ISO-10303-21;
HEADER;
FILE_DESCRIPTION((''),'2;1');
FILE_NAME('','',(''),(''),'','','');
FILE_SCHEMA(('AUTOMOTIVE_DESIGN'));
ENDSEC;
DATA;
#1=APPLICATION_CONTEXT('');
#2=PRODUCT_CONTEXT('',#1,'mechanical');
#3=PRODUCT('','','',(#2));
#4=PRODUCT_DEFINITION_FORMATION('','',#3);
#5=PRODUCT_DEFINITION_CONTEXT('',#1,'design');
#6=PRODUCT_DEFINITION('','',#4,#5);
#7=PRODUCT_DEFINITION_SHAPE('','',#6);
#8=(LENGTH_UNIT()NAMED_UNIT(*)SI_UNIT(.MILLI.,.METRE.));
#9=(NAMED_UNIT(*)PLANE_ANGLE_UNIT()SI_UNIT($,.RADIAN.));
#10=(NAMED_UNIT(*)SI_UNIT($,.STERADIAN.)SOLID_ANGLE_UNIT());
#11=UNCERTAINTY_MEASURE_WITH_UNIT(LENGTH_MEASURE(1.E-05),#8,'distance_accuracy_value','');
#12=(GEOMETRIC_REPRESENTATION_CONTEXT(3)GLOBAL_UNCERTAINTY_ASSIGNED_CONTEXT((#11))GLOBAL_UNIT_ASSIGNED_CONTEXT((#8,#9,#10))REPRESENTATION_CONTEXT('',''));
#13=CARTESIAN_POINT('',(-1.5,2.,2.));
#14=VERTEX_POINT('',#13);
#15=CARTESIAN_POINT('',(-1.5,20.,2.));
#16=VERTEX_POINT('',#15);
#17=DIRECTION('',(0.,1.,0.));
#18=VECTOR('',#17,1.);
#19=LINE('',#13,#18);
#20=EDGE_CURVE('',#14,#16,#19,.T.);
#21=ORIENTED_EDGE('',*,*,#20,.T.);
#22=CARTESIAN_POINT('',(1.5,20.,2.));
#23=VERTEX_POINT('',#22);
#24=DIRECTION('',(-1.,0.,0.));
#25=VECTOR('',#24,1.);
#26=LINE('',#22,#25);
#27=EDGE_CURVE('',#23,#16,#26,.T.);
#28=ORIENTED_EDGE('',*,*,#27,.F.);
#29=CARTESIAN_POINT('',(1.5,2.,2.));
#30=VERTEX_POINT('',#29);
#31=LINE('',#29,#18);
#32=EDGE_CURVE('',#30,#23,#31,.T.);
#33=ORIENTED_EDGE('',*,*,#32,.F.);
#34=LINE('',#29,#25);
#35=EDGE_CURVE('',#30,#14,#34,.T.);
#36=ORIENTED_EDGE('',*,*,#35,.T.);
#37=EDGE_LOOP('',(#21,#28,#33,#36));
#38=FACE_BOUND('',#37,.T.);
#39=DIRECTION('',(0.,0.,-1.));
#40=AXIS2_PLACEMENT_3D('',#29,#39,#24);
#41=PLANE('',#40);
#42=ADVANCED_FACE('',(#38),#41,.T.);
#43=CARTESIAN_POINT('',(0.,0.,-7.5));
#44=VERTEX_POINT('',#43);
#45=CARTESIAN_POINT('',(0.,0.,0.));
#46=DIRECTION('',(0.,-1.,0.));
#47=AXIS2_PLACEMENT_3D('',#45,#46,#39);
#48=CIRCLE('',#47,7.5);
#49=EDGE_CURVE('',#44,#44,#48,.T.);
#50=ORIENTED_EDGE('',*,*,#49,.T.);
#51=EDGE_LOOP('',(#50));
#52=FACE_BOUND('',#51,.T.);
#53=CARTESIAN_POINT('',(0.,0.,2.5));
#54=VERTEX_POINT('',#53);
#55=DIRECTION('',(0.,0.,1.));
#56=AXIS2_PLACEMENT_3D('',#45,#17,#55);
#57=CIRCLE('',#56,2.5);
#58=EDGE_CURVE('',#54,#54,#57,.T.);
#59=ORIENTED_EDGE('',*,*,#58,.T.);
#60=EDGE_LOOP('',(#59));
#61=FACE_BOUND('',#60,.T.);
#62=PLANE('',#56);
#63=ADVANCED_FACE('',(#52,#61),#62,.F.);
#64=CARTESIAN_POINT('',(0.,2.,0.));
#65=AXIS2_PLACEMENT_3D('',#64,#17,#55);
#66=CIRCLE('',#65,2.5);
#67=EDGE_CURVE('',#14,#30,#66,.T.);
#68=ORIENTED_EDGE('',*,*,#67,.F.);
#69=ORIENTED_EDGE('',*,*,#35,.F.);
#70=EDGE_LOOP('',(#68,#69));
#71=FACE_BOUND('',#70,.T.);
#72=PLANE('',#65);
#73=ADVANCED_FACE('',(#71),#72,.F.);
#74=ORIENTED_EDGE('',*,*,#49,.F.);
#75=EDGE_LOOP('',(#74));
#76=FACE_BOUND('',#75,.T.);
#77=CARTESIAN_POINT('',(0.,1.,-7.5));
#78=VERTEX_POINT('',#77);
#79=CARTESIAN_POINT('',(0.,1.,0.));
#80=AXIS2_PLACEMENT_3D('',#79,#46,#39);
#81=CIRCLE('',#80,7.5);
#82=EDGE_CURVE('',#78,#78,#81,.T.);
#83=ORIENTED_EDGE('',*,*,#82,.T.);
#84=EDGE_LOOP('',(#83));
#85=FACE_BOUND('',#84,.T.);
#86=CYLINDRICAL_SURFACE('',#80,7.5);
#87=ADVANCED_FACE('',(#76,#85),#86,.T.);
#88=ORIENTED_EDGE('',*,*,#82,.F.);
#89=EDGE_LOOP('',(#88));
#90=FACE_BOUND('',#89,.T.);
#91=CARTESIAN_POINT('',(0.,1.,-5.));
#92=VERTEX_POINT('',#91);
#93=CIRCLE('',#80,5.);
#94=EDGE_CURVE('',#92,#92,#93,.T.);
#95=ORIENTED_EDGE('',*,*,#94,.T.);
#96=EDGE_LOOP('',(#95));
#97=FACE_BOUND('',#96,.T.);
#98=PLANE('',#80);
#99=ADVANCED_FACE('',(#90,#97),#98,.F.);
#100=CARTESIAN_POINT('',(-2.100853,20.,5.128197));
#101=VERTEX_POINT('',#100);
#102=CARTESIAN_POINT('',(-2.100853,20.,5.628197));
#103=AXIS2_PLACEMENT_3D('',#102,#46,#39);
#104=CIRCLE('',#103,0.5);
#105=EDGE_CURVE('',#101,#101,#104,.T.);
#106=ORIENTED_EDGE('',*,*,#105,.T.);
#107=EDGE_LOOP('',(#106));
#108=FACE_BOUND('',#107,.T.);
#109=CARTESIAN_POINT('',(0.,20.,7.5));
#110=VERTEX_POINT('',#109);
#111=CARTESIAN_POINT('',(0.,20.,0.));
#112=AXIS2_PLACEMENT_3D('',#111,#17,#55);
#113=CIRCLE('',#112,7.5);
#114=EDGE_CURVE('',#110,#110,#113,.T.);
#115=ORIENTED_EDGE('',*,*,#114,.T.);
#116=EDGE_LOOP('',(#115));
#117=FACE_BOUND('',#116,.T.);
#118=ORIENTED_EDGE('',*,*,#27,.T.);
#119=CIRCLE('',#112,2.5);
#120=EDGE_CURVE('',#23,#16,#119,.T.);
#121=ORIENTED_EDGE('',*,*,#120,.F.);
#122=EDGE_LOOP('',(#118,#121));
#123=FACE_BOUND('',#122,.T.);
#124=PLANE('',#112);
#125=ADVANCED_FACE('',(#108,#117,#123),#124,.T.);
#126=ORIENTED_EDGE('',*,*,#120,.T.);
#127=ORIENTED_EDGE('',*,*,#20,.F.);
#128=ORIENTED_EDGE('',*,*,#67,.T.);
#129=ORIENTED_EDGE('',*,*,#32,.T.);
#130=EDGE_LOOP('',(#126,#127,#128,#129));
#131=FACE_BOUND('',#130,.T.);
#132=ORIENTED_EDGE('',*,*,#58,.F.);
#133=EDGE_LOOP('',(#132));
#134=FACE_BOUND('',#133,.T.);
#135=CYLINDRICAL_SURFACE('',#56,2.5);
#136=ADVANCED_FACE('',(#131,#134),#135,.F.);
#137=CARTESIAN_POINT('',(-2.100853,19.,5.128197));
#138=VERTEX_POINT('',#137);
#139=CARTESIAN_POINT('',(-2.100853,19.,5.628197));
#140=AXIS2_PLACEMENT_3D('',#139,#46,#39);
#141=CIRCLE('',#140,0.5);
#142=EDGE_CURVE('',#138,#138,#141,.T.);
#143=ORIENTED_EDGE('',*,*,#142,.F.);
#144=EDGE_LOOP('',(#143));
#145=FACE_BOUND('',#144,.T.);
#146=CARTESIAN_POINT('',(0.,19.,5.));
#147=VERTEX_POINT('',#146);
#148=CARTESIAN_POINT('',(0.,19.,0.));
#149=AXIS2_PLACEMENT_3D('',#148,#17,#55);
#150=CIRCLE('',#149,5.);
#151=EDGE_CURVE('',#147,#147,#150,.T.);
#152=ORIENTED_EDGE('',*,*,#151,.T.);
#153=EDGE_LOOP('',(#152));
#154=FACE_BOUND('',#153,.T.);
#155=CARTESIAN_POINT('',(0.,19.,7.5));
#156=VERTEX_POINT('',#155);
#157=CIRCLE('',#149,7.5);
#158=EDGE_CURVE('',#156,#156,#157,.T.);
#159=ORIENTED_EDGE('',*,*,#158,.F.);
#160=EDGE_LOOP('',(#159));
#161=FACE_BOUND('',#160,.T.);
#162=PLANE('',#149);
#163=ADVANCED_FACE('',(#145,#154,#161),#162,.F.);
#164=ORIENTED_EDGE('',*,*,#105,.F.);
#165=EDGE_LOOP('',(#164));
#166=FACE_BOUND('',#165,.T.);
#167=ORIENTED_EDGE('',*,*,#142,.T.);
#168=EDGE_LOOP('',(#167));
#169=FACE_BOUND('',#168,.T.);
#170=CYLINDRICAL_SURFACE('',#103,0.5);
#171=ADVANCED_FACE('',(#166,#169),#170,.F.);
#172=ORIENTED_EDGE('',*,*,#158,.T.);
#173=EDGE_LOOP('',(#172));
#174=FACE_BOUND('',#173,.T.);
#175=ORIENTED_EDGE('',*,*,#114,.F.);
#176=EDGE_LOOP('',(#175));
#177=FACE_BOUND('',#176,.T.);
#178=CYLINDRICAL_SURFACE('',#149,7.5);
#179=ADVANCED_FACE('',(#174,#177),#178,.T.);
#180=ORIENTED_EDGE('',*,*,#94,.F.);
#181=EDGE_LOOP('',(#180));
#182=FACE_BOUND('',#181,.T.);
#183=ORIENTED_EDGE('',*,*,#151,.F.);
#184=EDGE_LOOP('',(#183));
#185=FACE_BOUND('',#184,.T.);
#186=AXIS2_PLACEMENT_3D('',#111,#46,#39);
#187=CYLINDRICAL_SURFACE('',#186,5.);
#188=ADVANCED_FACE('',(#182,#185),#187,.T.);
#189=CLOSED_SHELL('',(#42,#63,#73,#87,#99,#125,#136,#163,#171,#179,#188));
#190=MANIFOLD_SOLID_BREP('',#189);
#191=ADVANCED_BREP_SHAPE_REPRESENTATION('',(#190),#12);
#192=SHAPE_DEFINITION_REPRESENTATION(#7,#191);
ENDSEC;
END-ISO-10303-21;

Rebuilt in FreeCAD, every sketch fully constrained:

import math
import FreeCAD as App
import Part
import Sketcher
from FreeCAD import Vector

doc = App.newDocument("Part")
params = doc.addObject("Spreadsheet::Sheet", "Params")
for row, (alias, value) in enumerate([
    ("sketch1_diameter", "10 mm"),
    ("pad1_length", "20 mm"),
    ("sketch2_diameter", "5 mm"),
    ("sketch3_radius", "2.5 mm"),
    ("sketch3_width", "3 mm"),
    ("pad2_length", "18 mm"),
    ("sketch4_diameter", "15 mm"),
    ("sketch4_diameter2", "5 mm"),
    ("pad3_length", "1 mm"),
    ("sketch5_diameter", "15 mm"),
    ("sketch5_radius", "2.5 mm"),
    ("sketch5_width", "3 mm"),
    ("pad4_length", "1 mm"),
    ("sketch6_diameter", "1 mm"),
], start=1):
    params.set(f"A{row}", alias)
    params.set(f"B{row}", "=" + value)
    params.setAlias(f"B{row}", alias)

body = doc.addObject("PartDesign::Body", "Body")

# Sketch on XZ plane
sketch1 = body.newObject("Sketcher::SketchObject", "Sketch")
sketch1.AttachmentSupport = (doc.getObject("XZ_Plane"), [""])
sketch1.MapMode = "FlatFace"
sketch1.addGeometry(Part.Circle(Vector(0, 0, 0), Vector(0, 0, 1), 5), False)
sketch1.addConstraint(Sketcher.Constraint("Coincident", 0, 3, -1, 1))
sketch1.addConstraint(Sketcher.Constraint("Diameter", 0, 10.0))
sketch1.setExpression("Constraints[1]", "Params.sketch1_diameter")
pad1 = body.newObject("PartDesign::Pad", "Pad")
pad1.Profile = sketch1
pad1.setExpression("Length", "Params.pad1_length")
pad1.Reversed = True

# Sketch on XZ plane
sketch2 = body.newObject("Sketcher::SketchObject", "Sketch001")
sketch2.AttachmentSupport = (doc.getObject("XZ_Plane"), [""])
sketch2.MapMode = "FlatFace"
sketch2.AttachmentOffset = App.Placement(Vector(0, 0, -20), App.Rotation())
sketch2.addGeometry(Part.Circle(Vector(0, 0, 0), Vector(0, 0, 1), 2.5), False)
sketch2.addConstraint(Sketcher.Constraint("Coincident", 0, 3, -1, 1))
sketch2.addConstraint(Sketcher.Constraint("Diameter", 0, 5.0))
sketch2.setExpression("Constraints[1]", "Params.sketch2_diameter")
pocket1 = body.newObject("PartDesign::Pocket", "Pocket")
pocket1.Profile = sketch2
pocket1.Type = "ThroughAll"
pocket1.Reversed = True

# Sketch on XZ plane
sketch3 = body.newObject("Sketcher::SketchObject", "Sketch002")
sketch3.AttachmentSupport = (doc.getObject("XZ_Plane"), [""])
sketch3.MapMode = "FlatFace"
sketch3.AttachmentOffset = App.Placement(Vector(0, 0, -20), App.Rotation())
sketch3.addGeometry(Part.LineSegment(Vector(1.5, 2, 0), Vector(-1.5, 2, 0)), False)
sketch3.addGeometry(Part.ArcOfCircle(Part.Circle(Vector(0, 0, 0), Vector(0, 0, 1), 2.5), math.radians(53), math.radians(127)), False)
sketch3.addConstraint(Sketcher.Constraint("Coincident", 0, 1, 1, 1))
sketch3.addConstraint(Sketcher.Constraint("Coincident", 1, 2, 0, 2))
sketch3.addConstraint(Sketcher.Constraint("Horizontal", 0))
sketch3.addConstraint(Sketcher.Constraint("Coincident", 1, 3, -1, 1))
sketch3.addConstraint(Sketcher.Constraint("Radius", 1, 2.5))
sketch3.addConstraint(Sketcher.Constraint("DistanceX", 0, 2, 0, 1, 3.0))
sketch3.setExpression("Constraints[4]", "Params.sketch3_radius")
sketch3.setExpression("Constraints[5]", "Params.sketch3_width")
pad2 = body.newObject("PartDesign::Pad", "Pad001")
pad2.Profile = sketch3
pad2.setExpression("Length", "Params.pad2_length")

# Sketch on XZ plane
sketch4 = body.newObject("Sketcher::SketchObject", "Sketch003")
sketch4.AttachmentSupport = (doc.getObject("XZ_Plane"), [""])
sketch4.MapMode = "FlatFace"
sketch4.addGeometry(Part.Circle(Vector(0, 0, 0), Vector(0, 0, 1), 7.5), False)
sketch4.addGeometry(Part.Circle(Vector(0, 0, 0), Vector(0, 0, 1), 2.5), False)
sketch4.addConstraint(Sketcher.Constraint("Coincident", 0, 3, -1, 1))
sketch4.addConstraint(Sketcher.Constraint("Coincident", 1, 3, -1, 1))
sketch4.addConstraint(Sketcher.Constraint("Diameter", 0, 15.0))
sketch4.addConstraint(Sketcher.Constraint("Diameter", 1, 5.0))
sketch4.setExpression("Constraints[2]", "Params.sketch4_diameter")
sketch4.setExpression("Constraints[3]", "Params.sketch4_diameter2")
pad3 = body.newObject("PartDesign::Pad", "Pad002")
pad3.Profile = sketch4
pad3.setExpression("Length", "Params.pad3_length")
pad3.Reversed = True

# Sketch on XZ plane
sketch5 = body.newObject("Sketcher::SketchObject", "Sketch004")
sketch5.AttachmentSupport = (doc.getObject("XZ_Plane"), [""])
sketch5.MapMode = "FlatFace"
sketch5.AttachmentOffset = App.Placement(Vector(0, 0, -20), App.Rotation())
sketch5.addGeometry(Part.Circle(Vector(0, 0, 0), Vector(0, 0, 1), 7.5), False)
sketch5.addGeometry(Part.ArcOfCircle(Part.Circle(Vector(0, 0, 0), Vector(0, 0, 1), 2.5), math.radians(127), math.radians(413)), False)
sketch5.addGeometry(Part.LineSegment(Vector(1.5, 2, 0), Vector(-1.5, 2, 0)), False)
sketch5.addConstraint(Sketcher.Constraint("Coincident", 1, 1, 2, 2))
sketch5.addConstraint(Sketcher.Constraint("Coincident", 2, 1, 1, 2))
sketch5.addConstraint(Sketcher.Constraint("Horizontal", 2))
sketch5.addConstraint(Sketcher.Constraint("Coincident", 0, 3, -1, 1))
sketch5.addConstraint(Sketcher.Constraint("Coincident", 1, 3, -1, 1))
sketch5.addConstraint(Sketcher.Constraint("Diameter", 0, 15.0))
sketch5.addConstraint(Sketcher.Constraint("Radius", 1, 2.5))
sketch5.addConstraint(Sketcher.Constraint("DistanceX", 2, 2, 2, 1, 3.0))
sketch5.setExpression("Constraints[5]", "Params.sketch5_diameter")
sketch5.setExpression("Constraints[6]", "Params.sketch5_radius")
sketch5.setExpression("Constraints[7]", "Params.sketch5_width")
pad4 = body.newObject("PartDesign::Pad", "Pad003")
pad4.Profile = sketch5
pad4.setExpression("Length", "Params.pad4_length")

# Sketch on XZ plane
sketch6 = body.newObject("Sketcher::SketchObject", "Sketch005")
sketch6.AttachmentSupport = (doc.getObject("XZ_Plane"), [""])
sketch6.MapMode = "FlatFace"
sketch6.AttachmentOffset = App.Placement(Vector(0, 0, -19), App.Rotation())
sketch6.addGeometry(Part.Circle(Vector(-2.1, 5.6, 0), Vector(0, 0, 1), 0.5), False)
sketch6.addConstraint(Sketcher.Constraint("Diameter", 0, 1.0))
sketch6.addConstraint(Sketcher.Constraint("DistanceX", 0, 3, -1, 1, 2.100853))
sketch6.addConstraint(Sketcher.Constraint("DistanceY", -1, 1, 0, 3, 5.628197))
sketch6.setExpression("Constraints[0]", "Params.sketch6_diameter")
pocket2 = body.newObject("PartDesign::Pocket", "Pocket001")
pocket2.Profile = sketch6
pocket2.Type = "ThroughAll"

doc.recompute()
